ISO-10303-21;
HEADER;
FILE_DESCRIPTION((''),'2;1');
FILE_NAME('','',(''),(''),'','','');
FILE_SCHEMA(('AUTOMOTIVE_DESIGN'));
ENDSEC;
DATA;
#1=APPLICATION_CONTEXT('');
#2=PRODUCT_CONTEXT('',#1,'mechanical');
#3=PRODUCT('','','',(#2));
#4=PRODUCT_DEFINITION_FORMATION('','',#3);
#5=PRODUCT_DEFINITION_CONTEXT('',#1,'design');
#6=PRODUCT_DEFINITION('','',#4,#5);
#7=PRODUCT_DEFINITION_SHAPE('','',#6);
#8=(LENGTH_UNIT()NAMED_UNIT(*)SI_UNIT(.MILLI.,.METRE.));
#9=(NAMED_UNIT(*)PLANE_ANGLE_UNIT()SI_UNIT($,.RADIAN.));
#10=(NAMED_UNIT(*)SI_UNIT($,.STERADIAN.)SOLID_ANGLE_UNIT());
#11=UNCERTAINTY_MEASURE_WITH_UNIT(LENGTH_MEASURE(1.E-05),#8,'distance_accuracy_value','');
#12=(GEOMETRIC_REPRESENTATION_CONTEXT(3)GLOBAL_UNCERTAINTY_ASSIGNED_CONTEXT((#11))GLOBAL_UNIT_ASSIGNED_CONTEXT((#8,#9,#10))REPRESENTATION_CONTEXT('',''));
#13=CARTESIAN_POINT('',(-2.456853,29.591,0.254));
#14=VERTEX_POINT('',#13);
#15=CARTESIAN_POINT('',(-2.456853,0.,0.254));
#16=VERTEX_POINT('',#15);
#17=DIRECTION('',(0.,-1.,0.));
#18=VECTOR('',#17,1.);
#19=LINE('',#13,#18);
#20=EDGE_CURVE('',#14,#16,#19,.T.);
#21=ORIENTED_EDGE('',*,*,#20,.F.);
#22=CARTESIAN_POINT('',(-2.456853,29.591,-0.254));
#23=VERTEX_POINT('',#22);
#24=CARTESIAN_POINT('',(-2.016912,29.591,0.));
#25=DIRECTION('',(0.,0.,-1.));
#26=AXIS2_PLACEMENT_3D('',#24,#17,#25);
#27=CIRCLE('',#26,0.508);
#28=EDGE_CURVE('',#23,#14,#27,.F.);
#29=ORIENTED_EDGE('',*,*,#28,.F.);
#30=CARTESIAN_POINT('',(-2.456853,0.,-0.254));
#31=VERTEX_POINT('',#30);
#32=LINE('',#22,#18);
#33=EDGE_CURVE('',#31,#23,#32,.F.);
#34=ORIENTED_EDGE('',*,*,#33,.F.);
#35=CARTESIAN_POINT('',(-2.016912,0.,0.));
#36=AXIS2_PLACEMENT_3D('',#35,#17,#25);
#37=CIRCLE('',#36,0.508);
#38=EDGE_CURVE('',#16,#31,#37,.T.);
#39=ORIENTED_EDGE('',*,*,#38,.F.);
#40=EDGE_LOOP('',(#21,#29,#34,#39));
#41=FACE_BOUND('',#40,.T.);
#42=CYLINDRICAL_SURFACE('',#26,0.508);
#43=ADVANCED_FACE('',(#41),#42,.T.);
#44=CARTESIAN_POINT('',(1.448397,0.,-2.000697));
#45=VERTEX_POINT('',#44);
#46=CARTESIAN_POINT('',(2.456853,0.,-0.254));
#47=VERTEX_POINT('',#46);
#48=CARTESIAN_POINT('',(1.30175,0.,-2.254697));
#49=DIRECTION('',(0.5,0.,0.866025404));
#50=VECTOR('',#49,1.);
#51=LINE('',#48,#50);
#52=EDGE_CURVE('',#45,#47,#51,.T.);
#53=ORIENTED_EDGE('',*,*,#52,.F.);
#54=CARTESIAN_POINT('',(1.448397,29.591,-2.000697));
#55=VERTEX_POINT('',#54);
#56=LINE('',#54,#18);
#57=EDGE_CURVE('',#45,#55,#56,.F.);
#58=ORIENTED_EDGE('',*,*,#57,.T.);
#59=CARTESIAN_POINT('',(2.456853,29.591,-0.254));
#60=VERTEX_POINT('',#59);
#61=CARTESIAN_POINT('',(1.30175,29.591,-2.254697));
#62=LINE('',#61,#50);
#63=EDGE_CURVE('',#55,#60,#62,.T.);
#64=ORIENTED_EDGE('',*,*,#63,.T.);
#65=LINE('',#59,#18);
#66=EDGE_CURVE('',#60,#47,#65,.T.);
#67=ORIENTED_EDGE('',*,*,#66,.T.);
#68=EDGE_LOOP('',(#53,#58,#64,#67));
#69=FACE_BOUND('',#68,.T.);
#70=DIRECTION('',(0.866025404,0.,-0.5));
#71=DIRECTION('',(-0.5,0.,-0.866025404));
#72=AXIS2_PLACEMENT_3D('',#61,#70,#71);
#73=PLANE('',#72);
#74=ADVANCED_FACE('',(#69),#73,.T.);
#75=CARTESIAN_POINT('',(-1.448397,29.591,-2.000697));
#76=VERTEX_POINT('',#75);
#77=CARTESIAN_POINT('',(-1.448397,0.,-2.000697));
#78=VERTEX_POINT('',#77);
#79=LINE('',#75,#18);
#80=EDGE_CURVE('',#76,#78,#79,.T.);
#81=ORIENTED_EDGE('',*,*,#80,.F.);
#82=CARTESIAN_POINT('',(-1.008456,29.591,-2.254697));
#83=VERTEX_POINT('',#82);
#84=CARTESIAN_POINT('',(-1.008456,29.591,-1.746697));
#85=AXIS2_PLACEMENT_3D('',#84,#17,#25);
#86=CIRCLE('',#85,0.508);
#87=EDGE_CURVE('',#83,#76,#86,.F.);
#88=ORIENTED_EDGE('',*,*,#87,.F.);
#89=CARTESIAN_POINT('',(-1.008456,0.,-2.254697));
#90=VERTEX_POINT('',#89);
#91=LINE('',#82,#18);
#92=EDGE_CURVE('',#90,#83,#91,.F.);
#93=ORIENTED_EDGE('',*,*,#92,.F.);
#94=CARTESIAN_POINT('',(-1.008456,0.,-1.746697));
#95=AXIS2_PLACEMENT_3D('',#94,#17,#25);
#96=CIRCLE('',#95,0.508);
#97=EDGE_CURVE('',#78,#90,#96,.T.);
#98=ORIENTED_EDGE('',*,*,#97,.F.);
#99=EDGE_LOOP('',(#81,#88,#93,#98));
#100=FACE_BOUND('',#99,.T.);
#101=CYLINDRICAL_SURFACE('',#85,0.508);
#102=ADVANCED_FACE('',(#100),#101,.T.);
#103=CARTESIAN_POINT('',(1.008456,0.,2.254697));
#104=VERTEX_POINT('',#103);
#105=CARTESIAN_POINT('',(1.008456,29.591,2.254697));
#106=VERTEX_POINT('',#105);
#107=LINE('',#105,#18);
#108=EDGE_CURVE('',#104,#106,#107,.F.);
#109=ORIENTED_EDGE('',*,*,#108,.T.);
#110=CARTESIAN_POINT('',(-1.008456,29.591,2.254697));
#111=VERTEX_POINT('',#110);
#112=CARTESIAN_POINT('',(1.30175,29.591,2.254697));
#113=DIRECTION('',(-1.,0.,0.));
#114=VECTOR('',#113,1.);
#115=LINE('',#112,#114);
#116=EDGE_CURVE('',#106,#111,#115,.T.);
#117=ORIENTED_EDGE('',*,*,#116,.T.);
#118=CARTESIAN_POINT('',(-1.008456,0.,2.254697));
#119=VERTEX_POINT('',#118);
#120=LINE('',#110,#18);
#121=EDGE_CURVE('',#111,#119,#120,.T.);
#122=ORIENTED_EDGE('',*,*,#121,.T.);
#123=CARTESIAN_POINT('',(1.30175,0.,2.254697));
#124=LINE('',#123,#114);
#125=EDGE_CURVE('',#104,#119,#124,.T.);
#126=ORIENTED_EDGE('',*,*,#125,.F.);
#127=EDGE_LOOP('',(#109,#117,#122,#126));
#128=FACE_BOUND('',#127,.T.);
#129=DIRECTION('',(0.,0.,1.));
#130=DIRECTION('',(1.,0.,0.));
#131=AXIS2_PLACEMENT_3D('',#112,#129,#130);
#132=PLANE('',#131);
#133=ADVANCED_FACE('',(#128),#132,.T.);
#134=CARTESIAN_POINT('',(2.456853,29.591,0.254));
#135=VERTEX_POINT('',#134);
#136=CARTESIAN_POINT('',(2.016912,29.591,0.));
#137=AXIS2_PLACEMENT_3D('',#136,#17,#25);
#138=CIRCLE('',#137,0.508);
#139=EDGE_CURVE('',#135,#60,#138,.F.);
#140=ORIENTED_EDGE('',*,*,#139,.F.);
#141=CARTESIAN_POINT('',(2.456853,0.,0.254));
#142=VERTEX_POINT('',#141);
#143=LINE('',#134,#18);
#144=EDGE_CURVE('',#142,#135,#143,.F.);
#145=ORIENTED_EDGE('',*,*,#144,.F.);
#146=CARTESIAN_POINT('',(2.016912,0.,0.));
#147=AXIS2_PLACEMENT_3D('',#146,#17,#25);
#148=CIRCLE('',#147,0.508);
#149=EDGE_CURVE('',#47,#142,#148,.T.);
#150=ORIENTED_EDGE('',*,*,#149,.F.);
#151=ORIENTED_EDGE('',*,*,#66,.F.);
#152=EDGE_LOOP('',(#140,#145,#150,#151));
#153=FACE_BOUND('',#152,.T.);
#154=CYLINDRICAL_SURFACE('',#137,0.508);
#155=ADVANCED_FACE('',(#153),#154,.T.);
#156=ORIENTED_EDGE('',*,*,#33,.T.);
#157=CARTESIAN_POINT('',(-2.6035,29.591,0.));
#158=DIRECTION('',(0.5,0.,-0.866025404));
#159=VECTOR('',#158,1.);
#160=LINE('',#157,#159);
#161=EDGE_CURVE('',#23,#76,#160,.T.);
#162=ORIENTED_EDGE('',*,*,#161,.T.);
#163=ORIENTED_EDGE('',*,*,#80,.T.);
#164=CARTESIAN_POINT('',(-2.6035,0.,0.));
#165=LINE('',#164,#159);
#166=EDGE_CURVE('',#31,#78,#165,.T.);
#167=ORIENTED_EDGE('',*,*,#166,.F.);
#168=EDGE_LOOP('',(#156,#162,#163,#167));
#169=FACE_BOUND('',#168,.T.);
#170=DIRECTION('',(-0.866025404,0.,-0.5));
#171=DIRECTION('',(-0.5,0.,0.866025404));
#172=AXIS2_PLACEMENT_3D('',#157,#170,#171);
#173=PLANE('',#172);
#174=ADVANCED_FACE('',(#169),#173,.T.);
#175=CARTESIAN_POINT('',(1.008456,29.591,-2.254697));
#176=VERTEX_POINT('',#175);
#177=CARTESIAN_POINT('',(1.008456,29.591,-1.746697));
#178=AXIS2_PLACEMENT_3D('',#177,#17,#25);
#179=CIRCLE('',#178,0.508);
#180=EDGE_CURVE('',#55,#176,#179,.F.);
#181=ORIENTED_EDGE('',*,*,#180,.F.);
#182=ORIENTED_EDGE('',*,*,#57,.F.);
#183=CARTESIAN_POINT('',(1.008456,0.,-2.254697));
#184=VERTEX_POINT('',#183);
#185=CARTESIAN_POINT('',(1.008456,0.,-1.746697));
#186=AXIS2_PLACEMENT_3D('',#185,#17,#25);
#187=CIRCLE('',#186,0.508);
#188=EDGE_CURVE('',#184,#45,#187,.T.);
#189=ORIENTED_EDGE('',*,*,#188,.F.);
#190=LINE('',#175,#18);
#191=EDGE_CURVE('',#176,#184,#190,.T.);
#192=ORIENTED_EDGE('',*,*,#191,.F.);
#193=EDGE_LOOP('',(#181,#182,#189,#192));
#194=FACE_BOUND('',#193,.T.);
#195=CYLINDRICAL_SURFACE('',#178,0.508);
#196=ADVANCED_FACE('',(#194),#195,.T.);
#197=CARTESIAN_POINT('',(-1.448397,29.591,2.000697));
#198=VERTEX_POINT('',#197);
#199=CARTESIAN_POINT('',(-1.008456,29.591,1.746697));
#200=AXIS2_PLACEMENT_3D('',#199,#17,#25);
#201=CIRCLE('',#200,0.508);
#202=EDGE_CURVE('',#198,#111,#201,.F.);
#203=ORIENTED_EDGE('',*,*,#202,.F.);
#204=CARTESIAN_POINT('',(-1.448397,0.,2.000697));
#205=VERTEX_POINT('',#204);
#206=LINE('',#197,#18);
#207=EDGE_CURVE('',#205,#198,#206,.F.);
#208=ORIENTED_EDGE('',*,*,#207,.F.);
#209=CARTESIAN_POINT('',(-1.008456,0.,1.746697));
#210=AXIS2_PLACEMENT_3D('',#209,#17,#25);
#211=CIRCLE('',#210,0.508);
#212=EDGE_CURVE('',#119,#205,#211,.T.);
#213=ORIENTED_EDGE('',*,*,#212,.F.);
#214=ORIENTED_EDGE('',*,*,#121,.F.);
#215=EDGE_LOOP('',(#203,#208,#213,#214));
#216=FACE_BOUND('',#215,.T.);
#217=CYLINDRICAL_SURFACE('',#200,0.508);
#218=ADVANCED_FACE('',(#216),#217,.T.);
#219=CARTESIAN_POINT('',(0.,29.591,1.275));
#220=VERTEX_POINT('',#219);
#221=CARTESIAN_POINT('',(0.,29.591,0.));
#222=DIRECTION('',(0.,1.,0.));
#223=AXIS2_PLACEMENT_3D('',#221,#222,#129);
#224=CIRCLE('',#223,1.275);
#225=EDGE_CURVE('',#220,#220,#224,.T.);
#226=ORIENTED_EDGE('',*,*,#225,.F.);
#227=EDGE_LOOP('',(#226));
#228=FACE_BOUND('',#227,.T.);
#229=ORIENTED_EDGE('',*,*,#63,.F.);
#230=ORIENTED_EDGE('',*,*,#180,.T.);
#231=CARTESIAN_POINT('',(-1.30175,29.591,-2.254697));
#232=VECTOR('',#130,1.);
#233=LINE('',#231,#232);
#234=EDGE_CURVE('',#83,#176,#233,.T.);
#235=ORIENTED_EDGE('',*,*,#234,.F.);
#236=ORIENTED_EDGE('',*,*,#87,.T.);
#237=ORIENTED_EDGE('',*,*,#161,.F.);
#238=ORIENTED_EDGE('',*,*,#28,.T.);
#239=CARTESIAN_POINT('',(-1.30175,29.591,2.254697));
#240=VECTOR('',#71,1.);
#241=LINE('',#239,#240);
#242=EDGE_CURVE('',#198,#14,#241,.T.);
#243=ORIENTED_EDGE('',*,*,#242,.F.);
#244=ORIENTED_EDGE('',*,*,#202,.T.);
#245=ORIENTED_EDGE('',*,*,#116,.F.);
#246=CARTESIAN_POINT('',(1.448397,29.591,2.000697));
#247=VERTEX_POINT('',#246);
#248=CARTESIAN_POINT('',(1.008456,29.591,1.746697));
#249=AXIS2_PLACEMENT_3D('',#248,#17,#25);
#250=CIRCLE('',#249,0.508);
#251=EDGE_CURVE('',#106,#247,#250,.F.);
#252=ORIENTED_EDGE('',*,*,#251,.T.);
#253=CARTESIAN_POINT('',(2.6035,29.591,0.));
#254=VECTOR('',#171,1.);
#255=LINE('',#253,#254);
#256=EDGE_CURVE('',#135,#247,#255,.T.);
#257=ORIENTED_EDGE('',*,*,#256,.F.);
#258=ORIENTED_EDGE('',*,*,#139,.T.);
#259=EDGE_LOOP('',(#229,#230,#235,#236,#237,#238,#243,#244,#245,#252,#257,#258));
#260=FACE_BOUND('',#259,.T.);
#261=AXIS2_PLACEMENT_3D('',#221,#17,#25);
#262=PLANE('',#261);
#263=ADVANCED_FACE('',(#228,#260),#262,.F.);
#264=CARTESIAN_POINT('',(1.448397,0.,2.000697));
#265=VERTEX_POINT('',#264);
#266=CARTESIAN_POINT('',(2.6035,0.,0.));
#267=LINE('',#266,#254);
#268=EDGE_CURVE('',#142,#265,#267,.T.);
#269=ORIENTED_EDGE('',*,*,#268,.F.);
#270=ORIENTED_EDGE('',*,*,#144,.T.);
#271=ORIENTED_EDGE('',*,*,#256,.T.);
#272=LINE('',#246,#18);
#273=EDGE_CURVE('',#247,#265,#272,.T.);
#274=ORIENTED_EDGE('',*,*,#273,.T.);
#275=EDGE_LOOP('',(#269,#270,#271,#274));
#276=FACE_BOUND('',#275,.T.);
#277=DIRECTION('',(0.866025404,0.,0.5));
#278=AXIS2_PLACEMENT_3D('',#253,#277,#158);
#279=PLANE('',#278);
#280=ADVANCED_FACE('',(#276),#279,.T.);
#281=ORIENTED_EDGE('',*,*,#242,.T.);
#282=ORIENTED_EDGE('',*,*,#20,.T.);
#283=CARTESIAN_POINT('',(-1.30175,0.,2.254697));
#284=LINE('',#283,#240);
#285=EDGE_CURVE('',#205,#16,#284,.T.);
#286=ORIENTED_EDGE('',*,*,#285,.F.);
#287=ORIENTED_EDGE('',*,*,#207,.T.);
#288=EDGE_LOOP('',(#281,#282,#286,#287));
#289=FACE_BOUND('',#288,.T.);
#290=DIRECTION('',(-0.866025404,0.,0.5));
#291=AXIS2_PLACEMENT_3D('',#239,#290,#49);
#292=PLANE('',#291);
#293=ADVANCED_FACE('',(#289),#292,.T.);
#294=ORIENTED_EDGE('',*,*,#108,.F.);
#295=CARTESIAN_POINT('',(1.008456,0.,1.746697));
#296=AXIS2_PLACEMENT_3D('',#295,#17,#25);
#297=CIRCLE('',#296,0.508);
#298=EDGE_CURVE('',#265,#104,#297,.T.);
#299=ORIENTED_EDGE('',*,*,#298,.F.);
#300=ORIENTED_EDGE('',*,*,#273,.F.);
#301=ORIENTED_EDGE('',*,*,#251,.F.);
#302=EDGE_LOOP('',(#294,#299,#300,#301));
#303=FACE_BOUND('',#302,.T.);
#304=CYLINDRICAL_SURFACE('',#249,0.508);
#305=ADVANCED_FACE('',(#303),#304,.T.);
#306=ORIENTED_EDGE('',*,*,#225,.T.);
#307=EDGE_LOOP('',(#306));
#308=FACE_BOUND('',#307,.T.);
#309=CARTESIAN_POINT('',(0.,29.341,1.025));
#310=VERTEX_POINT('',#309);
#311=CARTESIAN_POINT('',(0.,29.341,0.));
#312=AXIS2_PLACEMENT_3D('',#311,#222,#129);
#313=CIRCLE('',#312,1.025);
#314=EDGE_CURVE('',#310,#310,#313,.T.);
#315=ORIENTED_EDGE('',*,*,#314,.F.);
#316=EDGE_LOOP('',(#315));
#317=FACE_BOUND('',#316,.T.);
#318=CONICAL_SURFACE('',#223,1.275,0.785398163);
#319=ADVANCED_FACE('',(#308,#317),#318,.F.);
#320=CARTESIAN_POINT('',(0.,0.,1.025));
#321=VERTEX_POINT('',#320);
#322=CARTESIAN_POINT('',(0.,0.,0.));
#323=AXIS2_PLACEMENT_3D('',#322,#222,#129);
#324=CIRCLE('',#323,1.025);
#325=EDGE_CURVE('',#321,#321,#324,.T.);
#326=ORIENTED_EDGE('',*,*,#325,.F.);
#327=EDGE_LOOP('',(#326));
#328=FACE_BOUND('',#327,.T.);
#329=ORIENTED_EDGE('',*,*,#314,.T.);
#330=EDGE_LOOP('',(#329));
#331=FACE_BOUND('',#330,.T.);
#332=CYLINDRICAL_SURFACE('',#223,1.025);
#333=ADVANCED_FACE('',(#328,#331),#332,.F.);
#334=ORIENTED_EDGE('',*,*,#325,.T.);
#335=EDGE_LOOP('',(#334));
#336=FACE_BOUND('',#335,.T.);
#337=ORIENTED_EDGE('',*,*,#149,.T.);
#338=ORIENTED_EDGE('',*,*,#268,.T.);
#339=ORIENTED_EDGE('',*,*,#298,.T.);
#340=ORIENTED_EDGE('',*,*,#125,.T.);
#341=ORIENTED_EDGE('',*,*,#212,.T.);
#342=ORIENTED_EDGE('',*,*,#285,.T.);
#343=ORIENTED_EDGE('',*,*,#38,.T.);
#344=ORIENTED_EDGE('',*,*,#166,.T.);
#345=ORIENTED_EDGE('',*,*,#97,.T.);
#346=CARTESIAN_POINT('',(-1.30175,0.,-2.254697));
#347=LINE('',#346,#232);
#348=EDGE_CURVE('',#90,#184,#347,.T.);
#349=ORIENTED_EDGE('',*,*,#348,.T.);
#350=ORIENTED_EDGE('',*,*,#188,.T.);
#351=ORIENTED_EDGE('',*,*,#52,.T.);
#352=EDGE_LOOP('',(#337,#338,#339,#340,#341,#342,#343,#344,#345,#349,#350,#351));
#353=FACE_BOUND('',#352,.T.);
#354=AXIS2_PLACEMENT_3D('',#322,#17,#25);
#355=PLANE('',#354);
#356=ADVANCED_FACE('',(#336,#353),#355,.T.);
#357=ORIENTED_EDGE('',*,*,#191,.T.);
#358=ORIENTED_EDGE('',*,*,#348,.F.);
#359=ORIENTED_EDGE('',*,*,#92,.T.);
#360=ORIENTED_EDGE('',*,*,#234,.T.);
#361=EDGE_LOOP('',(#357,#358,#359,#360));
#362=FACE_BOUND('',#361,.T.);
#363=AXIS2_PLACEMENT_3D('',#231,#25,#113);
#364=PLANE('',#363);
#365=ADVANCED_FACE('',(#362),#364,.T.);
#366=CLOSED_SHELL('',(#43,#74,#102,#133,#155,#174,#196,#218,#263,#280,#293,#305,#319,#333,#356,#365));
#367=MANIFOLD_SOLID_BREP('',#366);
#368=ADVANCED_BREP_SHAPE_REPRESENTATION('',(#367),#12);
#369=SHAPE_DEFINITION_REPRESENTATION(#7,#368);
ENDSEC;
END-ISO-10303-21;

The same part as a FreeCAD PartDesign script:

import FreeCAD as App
import Part
import Sketcher

V = App.Vector
Q = App.Units.Quantity


def edges_at(feature, points):
    """Names of the edges that pass closest to the given points."""
    edges = feature.Shape.Edges
    near = lambda p: min(range(len(edges)), key=lambda i: edges[i].distToShape(Part.Vertex(*p))[0])
    return sorted({f"Edge{near(p) + 1}" for p in points})


def add_polygon(sketch, points):
    """Adds a closed chain of lines whose ends are joined by coincident constraints."""
    first, n = sketch.GeometryCount, len(points)
    for a, b in zip(points, points[1:] + points[:1]):
        sketch.addGeometry(Part.LineSegment(App.Vector(*a, 0), App.Vector(*b, 0)), False)
    for i in range(n):
        sketch.addConstraint(Sketcher.Constraint("Coincident", first + i, 2, first + (i + 1) % n, 1))

doc = App.newDocument("Part")
params = doc.addObject("Spreadsheet::Sheet", "Params")
for row, (alias, value) in enumerate([
    ("pad1_length", "1.165 in"),
    ("fillet_radius", "0.02 in"),
    ("hole_diameter", "2.05 mm"),
    ("hole_csink_diameter", "2.55 mm"),
], start=1):
    params.set(f"A{row}", alias)
    params.set(f"B{row}", "=" + value)
    params.setAlias(f"B{row}", alias)

body = doc.addObject("PartDesign::Body", "Body")

sketch1 = body.newObject("Sketcher::SketchObject", "Sketch")
sketch1.AttachmentSupport = (doc.getObject("XZ_Plane"), [""])
sketch1.MapMode = "FlatFace"
add_polygon(sketch1, [(-1.3, -2.3), (-2.6, 0), (-1.3, 2.3), (1.3, 2.3), (2.6, 0), (1.3, -2.3)])
sketch1.addConstraint(Sketcher.Constraint("Horizontal", 2))
sketch1.addConstraint(Sketcher.Constraint("Horizontal", 5))
sketch1.addConstraint(Sketcher.Constraint("Symmetric", 0, 2, 3, 2, -1, 1))
sketch1.addConstraint(Sketcher.Constraint("Symmetric", 1, 2, 4, 2, -1, 1))
sketch1.addConstraint(Sketcher.Constraint("PointOnObject", 0, 2, -1))
sketch1.addConstraint(Sketcher.Constraint("Parallel", 0, 3))
sketch1.addConstraint(Sketcher.Constraint("Vertical", 2, 2, 4, 2))
sketch1.addConstraint(Sketcher.Constraint("Angle", 0, Q("120 deg")))
sketch1.addConstraint(Sketcher.Constraint("DistanceX", 2, 1, 2, 2, Q("0.1025 in")))
sketch1.addConstraint(Sketcher.Constraint("DistanceX", 0, 2, 3, 2, Q("0.205 in")))
pad1 = body.newObject("PartDesign::Pad", "Pad")
pad1.Profile = sketch1
pad1.setExpression("Length", "Params.pad1_length")
pad1.Reversed = True
doc.recompute()

fillet = body.newObject("PartDesign::Fillet", "Fillet")
fillet.Base = (pad1, edges_at(pad1, [
    (-2.603, 14.796, 0),
    (-1.302, 14.796, 2.255),
    (1.302, 14.796, 2.255),
    (2.603, 14.796, 0),
    (1.302, 14.796, -2.255),
    (-1.302, 14.796, -2.255),
]))
fillet.setExpression("Radius", "Params.fillet_radius")

sketch2 = body.newObject("Sketcher::SketchObject", "Sketch001")
sketch2.AttachmentSupport = (doc.getObject("XZ_Plane"), [""])
sketch2.MapMode = "FlatFace"
sketch2.AttachmentOffset = App.Placement(V(0, 0, -1.165 * 25.4), App.Rotation())
sketch2.addGeometry(Part.Circle(V(0, 0, 0), V(0, 0, 1), 1), False)
sketch2.addConstraint(Sketcher.Constraint("Coincident", 0, 3, -1, 1))
sketch2.addConstraint(Sketcher.Constraint("Diameter", 0, 2.05))
doc.recompute()
hole = body.newObject("PartDesign::Hole", "Hole")
hole.Profile = sketch2
hole.ThreadType = "None"
hole.setExpression("Diameter", "Params.hole_diameter")
hole.DepthType = "ThroughAll"
hole.HoleCutType = "Countersink"
hole.setExpression("HoleCutDiameter", "Params.hole_csink_diameter")
hole.HoleCutCountersinkAngle = 90
hole.Reversed = True

doc.recompute()
